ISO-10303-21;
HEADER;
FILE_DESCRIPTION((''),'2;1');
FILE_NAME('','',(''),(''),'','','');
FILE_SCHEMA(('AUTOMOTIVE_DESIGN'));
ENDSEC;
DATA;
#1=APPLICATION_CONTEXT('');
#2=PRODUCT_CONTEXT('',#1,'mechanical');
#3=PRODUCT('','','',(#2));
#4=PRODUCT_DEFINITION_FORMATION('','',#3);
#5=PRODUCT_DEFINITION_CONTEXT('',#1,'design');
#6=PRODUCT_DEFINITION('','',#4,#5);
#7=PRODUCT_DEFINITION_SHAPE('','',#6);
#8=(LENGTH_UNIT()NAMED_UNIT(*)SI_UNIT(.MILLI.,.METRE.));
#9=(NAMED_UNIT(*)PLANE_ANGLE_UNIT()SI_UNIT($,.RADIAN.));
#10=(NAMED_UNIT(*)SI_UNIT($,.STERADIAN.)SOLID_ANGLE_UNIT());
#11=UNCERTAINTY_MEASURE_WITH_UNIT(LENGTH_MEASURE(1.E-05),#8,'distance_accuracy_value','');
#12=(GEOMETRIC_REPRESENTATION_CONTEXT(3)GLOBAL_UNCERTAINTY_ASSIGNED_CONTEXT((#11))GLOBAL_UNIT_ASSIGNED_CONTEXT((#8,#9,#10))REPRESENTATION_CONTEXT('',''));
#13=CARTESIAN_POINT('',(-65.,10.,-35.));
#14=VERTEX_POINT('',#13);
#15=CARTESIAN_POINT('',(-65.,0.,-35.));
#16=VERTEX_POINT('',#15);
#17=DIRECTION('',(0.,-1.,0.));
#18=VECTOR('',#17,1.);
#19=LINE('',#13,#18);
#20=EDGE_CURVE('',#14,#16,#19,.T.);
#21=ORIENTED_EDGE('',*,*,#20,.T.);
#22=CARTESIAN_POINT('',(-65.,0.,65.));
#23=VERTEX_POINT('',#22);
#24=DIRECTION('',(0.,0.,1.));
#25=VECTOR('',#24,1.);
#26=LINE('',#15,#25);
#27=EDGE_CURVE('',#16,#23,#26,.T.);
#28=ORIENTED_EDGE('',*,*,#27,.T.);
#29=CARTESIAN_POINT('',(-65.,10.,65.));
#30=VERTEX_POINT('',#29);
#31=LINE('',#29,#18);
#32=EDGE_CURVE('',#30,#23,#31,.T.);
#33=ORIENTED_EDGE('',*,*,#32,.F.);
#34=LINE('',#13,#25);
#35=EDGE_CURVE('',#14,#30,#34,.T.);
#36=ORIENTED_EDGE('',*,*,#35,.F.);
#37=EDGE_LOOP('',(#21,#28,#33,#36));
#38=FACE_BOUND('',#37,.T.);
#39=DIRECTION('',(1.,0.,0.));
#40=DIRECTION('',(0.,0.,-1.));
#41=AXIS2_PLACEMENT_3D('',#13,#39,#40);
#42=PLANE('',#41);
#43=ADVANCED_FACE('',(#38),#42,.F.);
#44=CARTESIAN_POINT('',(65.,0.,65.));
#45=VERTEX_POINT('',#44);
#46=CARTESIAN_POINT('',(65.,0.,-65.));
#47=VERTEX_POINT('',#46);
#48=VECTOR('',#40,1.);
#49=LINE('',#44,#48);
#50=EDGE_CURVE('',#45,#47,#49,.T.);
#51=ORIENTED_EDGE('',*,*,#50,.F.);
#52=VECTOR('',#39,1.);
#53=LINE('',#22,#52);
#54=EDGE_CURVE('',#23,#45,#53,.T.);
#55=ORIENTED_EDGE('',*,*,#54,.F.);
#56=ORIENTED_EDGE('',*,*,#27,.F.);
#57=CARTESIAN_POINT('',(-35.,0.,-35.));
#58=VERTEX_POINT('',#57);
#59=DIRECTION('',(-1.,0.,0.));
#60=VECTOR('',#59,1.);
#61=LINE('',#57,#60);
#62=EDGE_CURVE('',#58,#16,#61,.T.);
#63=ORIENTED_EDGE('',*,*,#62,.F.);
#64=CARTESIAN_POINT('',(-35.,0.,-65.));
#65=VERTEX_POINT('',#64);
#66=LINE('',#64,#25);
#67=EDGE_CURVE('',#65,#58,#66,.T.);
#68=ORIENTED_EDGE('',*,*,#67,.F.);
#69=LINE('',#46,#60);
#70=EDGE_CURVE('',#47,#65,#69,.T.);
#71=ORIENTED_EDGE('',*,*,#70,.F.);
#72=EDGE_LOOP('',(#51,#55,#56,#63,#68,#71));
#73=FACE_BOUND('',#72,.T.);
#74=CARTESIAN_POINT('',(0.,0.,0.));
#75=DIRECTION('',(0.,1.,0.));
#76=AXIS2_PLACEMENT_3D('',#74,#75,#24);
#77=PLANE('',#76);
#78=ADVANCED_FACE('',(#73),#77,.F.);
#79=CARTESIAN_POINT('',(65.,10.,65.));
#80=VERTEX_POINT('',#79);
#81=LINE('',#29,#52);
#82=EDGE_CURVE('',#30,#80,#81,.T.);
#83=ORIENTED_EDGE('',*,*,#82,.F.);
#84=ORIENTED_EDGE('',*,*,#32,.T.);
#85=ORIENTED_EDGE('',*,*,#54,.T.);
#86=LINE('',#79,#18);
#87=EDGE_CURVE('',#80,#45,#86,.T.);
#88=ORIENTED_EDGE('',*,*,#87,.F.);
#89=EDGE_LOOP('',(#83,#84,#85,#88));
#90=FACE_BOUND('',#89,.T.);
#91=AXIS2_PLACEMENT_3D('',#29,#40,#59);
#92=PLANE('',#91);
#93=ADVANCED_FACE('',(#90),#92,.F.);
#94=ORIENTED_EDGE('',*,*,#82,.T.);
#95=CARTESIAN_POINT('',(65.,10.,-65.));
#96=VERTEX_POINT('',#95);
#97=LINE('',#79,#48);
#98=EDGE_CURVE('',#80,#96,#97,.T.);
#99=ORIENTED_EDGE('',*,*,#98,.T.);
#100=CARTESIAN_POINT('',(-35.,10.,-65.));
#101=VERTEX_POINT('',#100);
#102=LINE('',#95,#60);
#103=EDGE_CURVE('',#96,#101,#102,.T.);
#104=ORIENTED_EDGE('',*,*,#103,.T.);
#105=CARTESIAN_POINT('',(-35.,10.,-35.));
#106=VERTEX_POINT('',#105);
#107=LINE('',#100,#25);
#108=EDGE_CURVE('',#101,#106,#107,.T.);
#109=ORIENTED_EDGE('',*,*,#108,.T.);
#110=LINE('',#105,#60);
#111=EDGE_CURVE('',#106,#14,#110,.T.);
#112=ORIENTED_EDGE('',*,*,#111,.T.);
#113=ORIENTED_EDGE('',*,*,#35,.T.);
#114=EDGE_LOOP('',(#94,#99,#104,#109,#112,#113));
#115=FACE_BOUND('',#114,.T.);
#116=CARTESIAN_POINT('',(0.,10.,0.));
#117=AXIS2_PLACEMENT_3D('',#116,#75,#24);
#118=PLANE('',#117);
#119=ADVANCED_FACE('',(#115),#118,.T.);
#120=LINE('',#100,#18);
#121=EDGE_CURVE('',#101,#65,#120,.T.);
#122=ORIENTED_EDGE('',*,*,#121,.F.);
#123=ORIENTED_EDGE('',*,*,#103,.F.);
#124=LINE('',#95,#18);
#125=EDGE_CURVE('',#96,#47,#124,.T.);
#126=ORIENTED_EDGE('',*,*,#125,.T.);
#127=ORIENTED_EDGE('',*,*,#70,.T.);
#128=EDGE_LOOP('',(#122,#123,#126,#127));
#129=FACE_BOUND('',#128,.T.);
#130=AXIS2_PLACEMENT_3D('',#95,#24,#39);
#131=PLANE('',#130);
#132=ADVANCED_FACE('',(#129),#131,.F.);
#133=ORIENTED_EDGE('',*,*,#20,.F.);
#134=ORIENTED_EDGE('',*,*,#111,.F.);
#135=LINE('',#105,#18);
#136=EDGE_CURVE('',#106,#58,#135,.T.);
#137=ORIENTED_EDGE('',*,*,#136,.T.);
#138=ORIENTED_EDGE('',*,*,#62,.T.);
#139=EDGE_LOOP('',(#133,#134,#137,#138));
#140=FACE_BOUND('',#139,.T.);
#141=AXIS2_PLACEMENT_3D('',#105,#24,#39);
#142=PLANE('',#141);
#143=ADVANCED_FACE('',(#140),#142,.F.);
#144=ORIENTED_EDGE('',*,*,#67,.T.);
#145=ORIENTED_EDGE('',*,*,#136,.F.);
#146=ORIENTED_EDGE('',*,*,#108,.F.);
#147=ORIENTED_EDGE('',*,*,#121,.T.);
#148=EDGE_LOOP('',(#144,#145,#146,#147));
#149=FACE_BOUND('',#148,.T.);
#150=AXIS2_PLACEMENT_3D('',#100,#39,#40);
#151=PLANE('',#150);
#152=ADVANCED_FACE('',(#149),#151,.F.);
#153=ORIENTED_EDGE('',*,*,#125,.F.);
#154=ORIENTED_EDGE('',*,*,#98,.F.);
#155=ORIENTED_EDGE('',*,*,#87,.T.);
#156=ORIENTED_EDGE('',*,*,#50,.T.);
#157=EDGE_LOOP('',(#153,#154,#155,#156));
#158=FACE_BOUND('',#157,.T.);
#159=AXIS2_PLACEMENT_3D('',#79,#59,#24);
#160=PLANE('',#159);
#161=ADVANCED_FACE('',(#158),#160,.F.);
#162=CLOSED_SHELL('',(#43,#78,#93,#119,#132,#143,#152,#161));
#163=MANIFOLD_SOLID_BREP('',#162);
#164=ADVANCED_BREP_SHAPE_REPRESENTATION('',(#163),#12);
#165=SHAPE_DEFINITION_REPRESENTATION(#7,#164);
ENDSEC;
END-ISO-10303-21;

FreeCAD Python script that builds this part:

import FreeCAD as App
import Part
import Sketcher
from FreeCAD import Vector
Q = App.Units.Quantity

doc = App.newDocument("Part")
body = doc.addObject("PartDesign::Body", "Body")

# Sketch on XZ plane
sketch1 = body.newObject("Sketcher::SketchObject", "Sketch")
sketch1.AttachmentSupport = (doc.getObject("XZ_Plane"), [""])
sketch1.MapMode = "FlatFace"
sketch1.addGeometry(Part.LineSegment(Vector(-65, 65, 0), Vector(65, 65, 0)), False)
sketch1.addGeometry(Part.LineSegment(Vector(65, 65, 0), Vector(65, -65, 0)), False)
sketch1.addGeometry(Part.LineSegment(Vector(65, -65, 0), Vector(-35, -65, 0)), False)
sketch1.addGeometry(Part.LineSegment(Vector(-35, -65, 0), Vector(-35, -35, 0)), False)
sketch1.addGeometry(Part.LineSegment(Vector(-35, -35, 0), Vector(-65, -35, 0)), False)
sketch1.addGeometry(Part.LineSegment(Vector(-65, -35, 0), Vector(-65, 65, 0)), False)
sketch1.addConstraint(Sketcher.Constraint("Coincident", 0, 2, 1, 1))
sketch1.addConstraint(Sketcher.Constraint("Coincident", 1, 2, 2, 1))
sketch1.addConstraint(Sketcher.Constraint("Coincident", 2, 2, 3, 1))
sketch1.addConstraint(Sketcher.Constraint("Coincident", 3, 2, 4, 1))
sketch1.addConstraint(Sketcher.Constraint("Coincident", 4, 2, 5, 1))
sketch1.addConstraint(Sketcher.Constraint("Coincident", 5, 2, 0, 1))
sketch1.addConstraint(Sketcher.Constraint("Horizontal", 0))
sketch1.addConstraint(Sketcher.Constraint("Vertical", 1))
sketch1.addConstraint(Sketcher.Constraint("Horizontal", 2))
sketch1.addConstraint(Sketcher.Constraint("Vertical", 3))
sketch1.addConstraint(Sketcher.Constraint("Horizontal", 4))
sketch1.addConstraint(Sketcher.Constraint("Vertical", 5))
sketch1.addConstraint(Sketcher.Constraint("Symmetric", 1, 2, 5, 2, -1, 1))
sketch1.addConstraint(Sketcher.Constraint("Equal", 0, 1))
sketch1.addConstraint(Sketcher.Constraint("Equal", 4, 3))
sketch1.addConstraint(Sketcher.Constraint("DistanceX", 0, 1, 0, 2, Q("130 mm")))
sketch1.addConstraint(Sketcher.Constraint("DistanceX", 2, 2, 2, 1, Q("100 mm")))
pad1 = body.newObject("PartDesign::Pad", "Pad")
pad1.Profile = sketch1
pad1.Length = 10
pad1.Reversed = True

doc.recompute()
